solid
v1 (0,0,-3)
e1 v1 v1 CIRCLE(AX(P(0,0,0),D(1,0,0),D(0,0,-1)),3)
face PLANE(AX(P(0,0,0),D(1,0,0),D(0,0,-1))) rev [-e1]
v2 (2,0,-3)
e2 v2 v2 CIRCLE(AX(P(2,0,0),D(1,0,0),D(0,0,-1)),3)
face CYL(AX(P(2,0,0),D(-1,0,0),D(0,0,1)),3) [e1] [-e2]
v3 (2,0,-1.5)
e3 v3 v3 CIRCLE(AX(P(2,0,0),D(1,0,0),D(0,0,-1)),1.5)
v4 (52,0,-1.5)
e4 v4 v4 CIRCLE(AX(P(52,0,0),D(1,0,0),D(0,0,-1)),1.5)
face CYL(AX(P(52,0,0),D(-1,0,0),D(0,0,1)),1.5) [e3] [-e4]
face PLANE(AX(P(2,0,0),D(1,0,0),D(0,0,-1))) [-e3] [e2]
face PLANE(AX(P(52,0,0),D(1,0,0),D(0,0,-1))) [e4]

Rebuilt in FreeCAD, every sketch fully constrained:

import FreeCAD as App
import Part
import Sketcher
from FreeCAD import Vector

doc = App.newDocument("Part")
body = doc.addObject("PartDesign::Body", "Body")

sketch1 = doc.addObject("Sketcher::SketchObject", "Sketch")
body.addObject(sketch1)
sketch1.AttachmentSupport = (doc.YZ_Plane, [""])
sketch1.MapMode = "FlatFace"
sketch1.addGeometry(Part.Circle(Vector(0, 0, 0), Vector(0, 0, 1), 3), False)
sketch1.addConstraint([
    Sketcher.Constraint("Coincident", 0, 3, -1, 1),
    Sketcher.Constraint("Diameter", 0, 6.0),
])
pad1 = doc.addObject("PartDesign::Pad", "Pad")
body.addObject(pad1)
pad1.Profile = sketch1
pad1.Length = 2

sketch2 = doc.addObject("Sketcher::SketchObject", "Sketch001")
body.addObject(sketch2)
sketch2.AttachmentSupport = (doc.YZ_Plane, [""])
sketch2.MapMode = "FlatFace"
sketch2.AttachmentOffset = App.Placement(Vector(0, 0, 2), App.Rotation())
sketch2.addGeometry(Part.Circle(Vector(0, 0, 0), Vector(0, 0, 1), 1.5), False)
sketch2.addConstraint([
    Sketcher.Constraint("Coincident", 0, 3, -1, 1),
    Sketcher.Constraint("Diameter", 0, 3.0),
])
pad2 = doc.addObject("PartDesign::Pad", "Pad001")
body.addObject(pad2)
pad2.Profile = sketch2
pad2.Length = 50

doc.recompute()
